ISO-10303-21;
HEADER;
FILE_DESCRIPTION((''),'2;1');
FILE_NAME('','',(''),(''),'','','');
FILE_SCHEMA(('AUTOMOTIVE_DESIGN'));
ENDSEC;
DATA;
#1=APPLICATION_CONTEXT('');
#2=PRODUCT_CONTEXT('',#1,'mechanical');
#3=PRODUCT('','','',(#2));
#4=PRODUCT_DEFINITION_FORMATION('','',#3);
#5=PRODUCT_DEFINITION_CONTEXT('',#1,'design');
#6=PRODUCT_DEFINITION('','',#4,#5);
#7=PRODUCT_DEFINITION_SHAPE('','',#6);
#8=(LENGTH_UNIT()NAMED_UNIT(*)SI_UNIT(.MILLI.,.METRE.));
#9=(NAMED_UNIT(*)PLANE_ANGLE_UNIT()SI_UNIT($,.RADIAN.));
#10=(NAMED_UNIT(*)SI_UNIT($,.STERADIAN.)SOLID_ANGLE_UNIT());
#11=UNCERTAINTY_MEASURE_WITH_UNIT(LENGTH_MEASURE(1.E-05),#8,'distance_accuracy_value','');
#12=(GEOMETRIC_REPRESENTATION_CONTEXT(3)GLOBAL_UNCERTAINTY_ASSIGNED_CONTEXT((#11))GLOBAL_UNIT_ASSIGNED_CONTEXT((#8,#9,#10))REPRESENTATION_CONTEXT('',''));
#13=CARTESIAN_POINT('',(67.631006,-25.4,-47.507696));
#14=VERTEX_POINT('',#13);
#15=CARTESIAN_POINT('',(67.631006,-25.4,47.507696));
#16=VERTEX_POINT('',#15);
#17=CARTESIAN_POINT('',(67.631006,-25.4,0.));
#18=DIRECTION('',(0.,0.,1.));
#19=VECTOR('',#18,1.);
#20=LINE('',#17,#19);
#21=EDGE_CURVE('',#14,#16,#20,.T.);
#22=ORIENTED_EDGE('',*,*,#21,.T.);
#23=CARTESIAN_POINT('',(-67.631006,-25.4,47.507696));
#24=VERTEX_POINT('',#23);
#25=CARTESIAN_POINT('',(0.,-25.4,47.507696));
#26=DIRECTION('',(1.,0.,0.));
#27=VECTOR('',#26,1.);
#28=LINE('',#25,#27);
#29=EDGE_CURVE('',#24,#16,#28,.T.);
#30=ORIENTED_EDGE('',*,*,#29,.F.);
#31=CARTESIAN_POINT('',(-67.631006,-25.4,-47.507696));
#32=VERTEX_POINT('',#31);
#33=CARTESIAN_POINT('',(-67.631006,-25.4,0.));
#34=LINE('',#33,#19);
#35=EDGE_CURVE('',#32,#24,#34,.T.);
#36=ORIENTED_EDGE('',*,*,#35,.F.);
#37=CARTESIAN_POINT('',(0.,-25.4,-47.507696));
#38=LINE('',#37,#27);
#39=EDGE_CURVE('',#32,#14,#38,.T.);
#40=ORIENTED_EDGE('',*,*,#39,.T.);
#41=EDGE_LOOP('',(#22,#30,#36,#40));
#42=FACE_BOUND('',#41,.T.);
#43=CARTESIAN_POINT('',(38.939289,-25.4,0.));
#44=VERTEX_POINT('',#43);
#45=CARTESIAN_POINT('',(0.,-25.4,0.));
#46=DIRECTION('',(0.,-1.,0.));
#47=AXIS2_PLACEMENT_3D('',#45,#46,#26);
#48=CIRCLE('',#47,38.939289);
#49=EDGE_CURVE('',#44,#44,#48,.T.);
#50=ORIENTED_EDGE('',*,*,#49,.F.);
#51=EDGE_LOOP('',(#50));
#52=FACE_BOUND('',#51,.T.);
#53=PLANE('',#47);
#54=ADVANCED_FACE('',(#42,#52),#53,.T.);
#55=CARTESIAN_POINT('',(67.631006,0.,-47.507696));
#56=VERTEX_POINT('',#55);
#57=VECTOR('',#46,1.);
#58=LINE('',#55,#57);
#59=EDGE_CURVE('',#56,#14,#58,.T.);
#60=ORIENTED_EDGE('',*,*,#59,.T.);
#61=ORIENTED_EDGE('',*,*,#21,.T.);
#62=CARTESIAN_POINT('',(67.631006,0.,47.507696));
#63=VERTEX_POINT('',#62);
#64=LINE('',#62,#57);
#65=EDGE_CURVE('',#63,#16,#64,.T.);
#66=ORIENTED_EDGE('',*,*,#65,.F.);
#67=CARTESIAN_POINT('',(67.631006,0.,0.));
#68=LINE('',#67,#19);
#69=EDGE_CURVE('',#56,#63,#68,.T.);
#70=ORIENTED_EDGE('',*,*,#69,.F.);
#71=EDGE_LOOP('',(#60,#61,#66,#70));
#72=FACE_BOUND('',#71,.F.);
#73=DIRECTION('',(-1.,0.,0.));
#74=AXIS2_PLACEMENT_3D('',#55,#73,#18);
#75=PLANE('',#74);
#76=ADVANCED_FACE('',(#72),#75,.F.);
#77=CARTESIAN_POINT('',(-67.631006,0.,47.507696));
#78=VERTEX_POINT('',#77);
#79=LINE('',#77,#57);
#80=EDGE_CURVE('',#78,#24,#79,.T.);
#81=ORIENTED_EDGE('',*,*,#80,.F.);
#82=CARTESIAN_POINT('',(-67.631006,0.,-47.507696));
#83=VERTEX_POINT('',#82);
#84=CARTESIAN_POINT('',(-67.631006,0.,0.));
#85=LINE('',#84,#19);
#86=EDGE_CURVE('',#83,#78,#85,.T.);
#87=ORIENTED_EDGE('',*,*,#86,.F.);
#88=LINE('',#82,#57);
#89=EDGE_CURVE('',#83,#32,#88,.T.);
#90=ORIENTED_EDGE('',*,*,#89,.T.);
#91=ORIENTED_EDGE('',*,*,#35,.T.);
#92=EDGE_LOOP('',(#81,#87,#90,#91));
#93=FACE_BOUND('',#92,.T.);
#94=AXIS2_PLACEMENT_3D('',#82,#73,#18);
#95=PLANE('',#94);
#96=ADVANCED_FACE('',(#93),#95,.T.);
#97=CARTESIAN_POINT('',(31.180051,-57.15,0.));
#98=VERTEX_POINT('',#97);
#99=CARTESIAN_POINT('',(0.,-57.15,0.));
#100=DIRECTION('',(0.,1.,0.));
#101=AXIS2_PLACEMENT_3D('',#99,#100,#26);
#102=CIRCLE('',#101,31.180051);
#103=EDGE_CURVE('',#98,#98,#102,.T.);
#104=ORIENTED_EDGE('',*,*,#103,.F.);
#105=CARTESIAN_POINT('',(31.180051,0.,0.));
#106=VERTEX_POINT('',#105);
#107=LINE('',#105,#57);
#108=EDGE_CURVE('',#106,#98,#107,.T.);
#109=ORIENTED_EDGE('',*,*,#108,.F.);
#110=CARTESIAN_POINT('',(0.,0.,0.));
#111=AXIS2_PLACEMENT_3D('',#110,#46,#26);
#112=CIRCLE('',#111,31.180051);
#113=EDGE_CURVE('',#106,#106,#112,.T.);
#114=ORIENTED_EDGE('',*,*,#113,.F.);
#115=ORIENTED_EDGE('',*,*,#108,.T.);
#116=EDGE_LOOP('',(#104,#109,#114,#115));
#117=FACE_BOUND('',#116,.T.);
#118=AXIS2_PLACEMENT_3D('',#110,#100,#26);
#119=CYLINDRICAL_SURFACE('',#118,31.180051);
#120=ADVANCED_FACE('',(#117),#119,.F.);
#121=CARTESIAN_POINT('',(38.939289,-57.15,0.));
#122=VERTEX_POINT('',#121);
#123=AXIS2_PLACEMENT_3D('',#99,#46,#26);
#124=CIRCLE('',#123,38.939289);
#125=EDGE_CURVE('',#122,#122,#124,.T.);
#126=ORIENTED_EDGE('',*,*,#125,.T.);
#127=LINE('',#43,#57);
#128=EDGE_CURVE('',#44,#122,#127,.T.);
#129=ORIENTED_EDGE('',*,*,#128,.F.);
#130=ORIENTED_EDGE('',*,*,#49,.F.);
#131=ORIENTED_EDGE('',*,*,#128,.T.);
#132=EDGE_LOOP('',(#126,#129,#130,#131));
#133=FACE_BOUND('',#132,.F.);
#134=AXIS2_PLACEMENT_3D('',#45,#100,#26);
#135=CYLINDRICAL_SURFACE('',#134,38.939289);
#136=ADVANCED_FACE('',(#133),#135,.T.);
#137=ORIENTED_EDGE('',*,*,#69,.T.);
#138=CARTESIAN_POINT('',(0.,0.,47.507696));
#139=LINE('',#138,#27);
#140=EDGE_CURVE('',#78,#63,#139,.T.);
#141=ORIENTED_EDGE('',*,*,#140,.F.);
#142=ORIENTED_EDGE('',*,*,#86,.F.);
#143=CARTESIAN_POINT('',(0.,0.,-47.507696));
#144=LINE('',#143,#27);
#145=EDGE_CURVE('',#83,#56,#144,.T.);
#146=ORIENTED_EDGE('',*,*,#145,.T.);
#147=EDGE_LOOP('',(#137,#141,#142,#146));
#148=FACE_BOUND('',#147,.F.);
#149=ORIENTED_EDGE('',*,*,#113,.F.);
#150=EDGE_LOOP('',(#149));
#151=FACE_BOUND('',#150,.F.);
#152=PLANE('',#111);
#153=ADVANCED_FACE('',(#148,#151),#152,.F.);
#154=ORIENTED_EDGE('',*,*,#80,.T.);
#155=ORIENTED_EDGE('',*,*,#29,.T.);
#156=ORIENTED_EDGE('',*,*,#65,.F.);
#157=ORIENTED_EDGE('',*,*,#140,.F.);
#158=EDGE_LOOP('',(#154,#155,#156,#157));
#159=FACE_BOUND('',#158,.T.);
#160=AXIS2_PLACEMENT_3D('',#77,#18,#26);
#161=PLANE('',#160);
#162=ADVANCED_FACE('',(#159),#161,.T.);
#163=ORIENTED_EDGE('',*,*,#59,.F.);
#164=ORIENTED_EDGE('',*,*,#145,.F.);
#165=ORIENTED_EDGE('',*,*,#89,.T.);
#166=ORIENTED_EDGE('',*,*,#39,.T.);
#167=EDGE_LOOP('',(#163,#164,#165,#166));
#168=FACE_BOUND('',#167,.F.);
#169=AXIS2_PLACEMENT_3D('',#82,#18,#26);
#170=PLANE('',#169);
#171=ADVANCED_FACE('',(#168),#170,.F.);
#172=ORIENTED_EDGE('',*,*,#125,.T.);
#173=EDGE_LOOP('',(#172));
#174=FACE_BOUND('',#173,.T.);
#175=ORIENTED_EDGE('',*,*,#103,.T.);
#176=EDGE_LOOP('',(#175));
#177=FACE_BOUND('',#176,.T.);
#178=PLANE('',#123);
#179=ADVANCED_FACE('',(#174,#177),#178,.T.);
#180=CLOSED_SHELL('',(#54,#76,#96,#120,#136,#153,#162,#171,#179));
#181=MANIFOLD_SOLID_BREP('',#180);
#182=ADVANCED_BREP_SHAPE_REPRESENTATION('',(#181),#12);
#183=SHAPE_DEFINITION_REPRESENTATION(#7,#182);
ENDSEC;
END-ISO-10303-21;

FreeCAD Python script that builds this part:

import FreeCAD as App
import Part
import Sketcher
Q = App.Units.Quantity

doc = App.newDocument("Part")
body = doc.addObject("PartDesign::Body", "Body")

sketch1 = body.newObject("Sketcher::SketchObject", "Sketch")
sketch1.AttachmentSupport = (doc.getObject("XZ_Plane"), [""])
sketch1.MapMode = "FlatFace"
sketch1.addGeometry([
    Part.LineSegment(App.Vector(-68, 48, 0), App.Vector(-68, -48, 0)),
    Part.LineSegment(App.Vector(-68, -48, 0), App.Vector(68, -48, 0)),
    Part.LineSegment(App.Vector(68, -48, 0), App.Vector(68, 48, 0)),
    Part.LineSegment(App.Vector(68, 48, 0), App.Vector(-68, 48, 0)),
], False)
sketch1.addConstraint([
    Sketcher.Constraint("Coincident", 0, 2, 1, 1),
    Sketcher.Constraint("Coincident", 1, 2, 2, 1),
    Sketcher.Constraint("Coincident", 2, 2, 3, 1),
    Sketcher.Constraint("Coincident", 3, 2, 0, 1),
    Sketcher.Constraint("Vertical", 0),
    Sketcher.Constraint("Horizontal", 1),
    Sketcher.Constraint("Vertical", 2),
    Sketcher.Constraint("Horizontal", 3),
    Sketcher.Constraint("Symmetric", 0, 2, 2, 2, -1, 1),
    Sketcher.Constraint("DistanceX", 1, 1, 1, 2, 135.262012),
    Sketcher.Constraint("DistanceY", 0, 2, 0, 1, 95.015392),
])
pad1 = body.newObject("PartDesign::Pad", "Pad")
pad1.Profile = sketch1
pad1.Length = Q("1 in")

sketch2 = body.newObject("Sketcher::SketchObject", "Sketch001")
sketch2.AttachmentSupport = (doc.getObject("XZ_Plane"), [""])
sketch2.MapMode = "FlatFace"
sketch2.AttachmentOffset = App.Placement(App.Vector(0, 0, 1 * 25.4), App.Rotation())
sketch2.addGeometry(Part.Circle(App.Vector(0, 0, 0), App.Vector(0, 0, 1), 39), False)
sketch2.addConstraint([
    Sketcher.Constraint("Coincident", 0, 3, -1, 1),
    Sketcher.Constraint("Diameter", 0, 77.878578),
])
pad2 = body.newObject("PartDesign::Pad", "Pad001")
pad2.Profile = sketch2
pad2.Length = Q("1.25 in")

sketch3 = body.newObject("Sketcher::SketchObject", "Sketch002")
sketch3.AttachmentSupport = (doc.getObject("XZ_Plane"), [""])
sketch3.MapMode = "FlatFace"
sketch3.addGeometry(Part.Circle(App.Vector(0, 0, 0), App.Vector(0, 0, 1), 31), False)
sketch3.addConstraint([
    Sketcher.Constraint("Coincident", 0, 3, -1, 1),
    Sketcher.Constraint("Diameter", 0, 62.360102),
])
pocket1 = body.newObject("PartDesign::Pocket", "Pocket")
pocket1.Profile = sketch3
pocket1.Length = Q("3 in")
pocket1.Reversed = True

doc.recompute()
